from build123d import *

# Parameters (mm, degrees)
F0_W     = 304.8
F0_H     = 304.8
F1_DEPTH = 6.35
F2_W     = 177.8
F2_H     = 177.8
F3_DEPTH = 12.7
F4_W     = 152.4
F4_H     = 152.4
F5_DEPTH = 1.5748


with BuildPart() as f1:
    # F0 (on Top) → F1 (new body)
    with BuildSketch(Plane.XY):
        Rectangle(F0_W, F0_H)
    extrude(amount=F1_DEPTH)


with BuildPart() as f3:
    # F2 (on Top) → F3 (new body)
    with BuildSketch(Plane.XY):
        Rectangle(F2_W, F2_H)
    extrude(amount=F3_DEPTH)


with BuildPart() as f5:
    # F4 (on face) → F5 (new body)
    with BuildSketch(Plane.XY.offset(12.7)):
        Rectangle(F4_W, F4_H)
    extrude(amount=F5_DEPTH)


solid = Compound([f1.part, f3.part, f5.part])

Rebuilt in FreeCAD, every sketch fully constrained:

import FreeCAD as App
import Part
import Sketcher

V = App.Vector
Q = App.Units.Quantity

doc = App.newDocument("Part")
params = doc.addObject("Spreadsheet::Sheet", "Params")
for row, (alias, value) in enumerate([
    ("sketch1_width", "12 in"),
    ("pad1_length", "0.25 in"),
    ("sketch2_width", "7 in"),
    ("pad2_length", "0.5 in"),
    ("sketch3_width", "6 in"),
    ("pad3_length", "0.062 in"),
], start=1):
    params.set(f"A{row}", alias)
    params.set(f"B{row}", "=" + value)
    params.setAlias(f"B{row}", alias)

body = doc.addObject("PartDesign::Body", "Body")

sketch1 = body.newObject("Sketcher::SketchObject", "Sketch")
sketch1.AttachmentSupport = (doc.getObject("XY_Plane"), [""])
sketch1.MapMode = "FlatFace"
sketch1.addGeometry([
    Part.LineSegment(V(-152.4, 152.4, 0), V(-152.4, -152.4, 0)),
    Part.LineSegment(V(-152.4, -152.4, 0), V(152.4, -152.4, 0)),
    Part.LineSegment(V(152.4, -152.4, 0), V(152.4, 152.4, 0)),
    Part.LineSegment(V(152.4, 152.4, 0), V(-152.4, 152.4, 0)),
], False)
sketch1.addConstraint([
    Sketcher.Constraint("Coincident", 0, 2, 1, 1),
    Sketcher.Constraint("Coincident", 1, 2, 2, 1),
    Sketcher.Constraint("Coincident", 2, 2, 3, 1),
    Sketcher.Constraint("Coincident", 3, 2, 0, 1),
    Sketcher.Constraint("Vertical", 0),
    Sketcher.Constraint("Horizontal", 1),
    Sketcher.Constraint("Vertical", 2),
    Sketcher.Constraint("Horizontal", 3),
    Sketcher.Constraint("Symmetric", 0, 2, 2, 2, -1, 1),
    Sketcher.Constraint("Equal", 3, 0),
    Sketcher.Constraint("DistanceX", 1, 1, 1, 2, Q("12 in")),
])
sketch1.setExpression("Constraints[10]", "Params.sketch1_width")
pad1 = body.newObject("PartDesign::Pad", "Pad")
pad1.Profile = sketch1
pad1.setExpression("Length", "Params.pad1_length")
body2 = doc.addObject("PartDesign::Body", "Body001")

sketch2 = body2.newObject("Sketcher::SketchObject", "Sketch001")
sketch2.AttachmentSupport = (doc.getObject("XY_Plane001"), [""])
sketch2.MapMode = "FlatFace"
sketch2.addGeometry([
    Part.LineSegment(V(-88.9, 88.9, 0), V(-88.9, -88.9, 0)),
    Part.LineSegment(V(-88.9, -88.9, 0), V(88.9, -88.9, 0)),
    Part.LineSegment(V(88.9, -88.9, 0), V(88.9, 88.9, 0)),
    Part.LineSegment(V(88.9, 88.9, 0), V(-88.9, 88.9, 0)),
], False)
sketch2.addConstraint([
    Sketcher.Constraint("Coincident", 0, 2, 1, 1),
    Sketcher.Constraint("Coincident", 1, 2, 2, 1),
    Sketcher.Constraint("Coincident", 2, 2, 3, 1),
    Sketcher.Constraint("Coincident", 3, 2, 0, 1),
    Sketcher.Constraint("Vertical", 0),
    Sketcher.Constraint("Horizontal", 1),
    Sketcher.Constraint("Vertical", 2),
    Sketcher.Constraint("Horizontal", 3),
    Sketcher.Constraint("Symmetric", 0, 2, 2, 2, -1, 1),
    Sketcher.Constraint("Equal", 3, 0),
    Sketcher.Constraint("DistanceX", 1, 1, 1, 2, Q("7 in")),
])
sketch2.setExpression("Constraints[10]", "Params.sketch2_width")
pad2 = body2.newObject("PartDesign::Pad", "Pad001")
pad2.Profile = sketch2
pad2.setExpression("Length", "Params.pad2_length")
body3 = doc.addObject("PartDesign::Body", "Body002")

sketch3 = body3.newObject("Sketcher::SketchObject", "Sketch002")
sketch3.AttachmentSupport = (doc.getObject("XY_Plane002"), [""])
sketch3.MapMode = "FlatFace"
sketch3.AttachmentOffset = App.Placement(V(0, 0, 0.5 * 25.4), App.Rotation())
sketch3.addGeometry([
    Part.LineSegment(V(-76.2, 76.2, 0), V(-76.2, -76.2, 0)),
    Part.LineSegment(V(-76.2, -76.2, 0), V(76.2, -76.2, 0)),
    Part.LineSegment(V(76.2, -76.2, 0), V(76.2, 76.2, 0)),
    Part.LineSegment(V(76.2, 76.2, 0), V(-76.2, 76.2, 0)),
], False)
sketch3.addConstraint([
    Sketcher.Constraint("Coincident", 0, 2, 1, 1),
    Sketcher.Constraint("Coincident", 1, 2, 2, 1),
    Sketcher.Constraint("Coincident", 2, 2, 3, 1),
    Sketcher.Constraint("Coincident", 3, 2, 0, 1),
    Sketcher.Constraint("Vertical", 0),
    Sketcher.Constraint("Horizontal", 1),
    Sketcher.Constraint("Vertical", 2),
    Sketcher.Constraint("Horizontal", 3),
    Sketcher.Constraint("Symmetric", 0, 2, 2, 2, -1, 1),
    Sketcher.Constraint("Equal", 3, 0),
    Sketcher.Constraint("DistanceX", 1, 1, 1, 2, Q("6 in")),
])
sketch3.setExpression("Constraints[10]", "Params.sketch3_width")
pad3 = body3.newObject("PartDesign::Pad", "Pad002")
pad3.Profile = sketch3
pad3.setExpression("Length", "Params.pad3_length")

doc.recompute()
